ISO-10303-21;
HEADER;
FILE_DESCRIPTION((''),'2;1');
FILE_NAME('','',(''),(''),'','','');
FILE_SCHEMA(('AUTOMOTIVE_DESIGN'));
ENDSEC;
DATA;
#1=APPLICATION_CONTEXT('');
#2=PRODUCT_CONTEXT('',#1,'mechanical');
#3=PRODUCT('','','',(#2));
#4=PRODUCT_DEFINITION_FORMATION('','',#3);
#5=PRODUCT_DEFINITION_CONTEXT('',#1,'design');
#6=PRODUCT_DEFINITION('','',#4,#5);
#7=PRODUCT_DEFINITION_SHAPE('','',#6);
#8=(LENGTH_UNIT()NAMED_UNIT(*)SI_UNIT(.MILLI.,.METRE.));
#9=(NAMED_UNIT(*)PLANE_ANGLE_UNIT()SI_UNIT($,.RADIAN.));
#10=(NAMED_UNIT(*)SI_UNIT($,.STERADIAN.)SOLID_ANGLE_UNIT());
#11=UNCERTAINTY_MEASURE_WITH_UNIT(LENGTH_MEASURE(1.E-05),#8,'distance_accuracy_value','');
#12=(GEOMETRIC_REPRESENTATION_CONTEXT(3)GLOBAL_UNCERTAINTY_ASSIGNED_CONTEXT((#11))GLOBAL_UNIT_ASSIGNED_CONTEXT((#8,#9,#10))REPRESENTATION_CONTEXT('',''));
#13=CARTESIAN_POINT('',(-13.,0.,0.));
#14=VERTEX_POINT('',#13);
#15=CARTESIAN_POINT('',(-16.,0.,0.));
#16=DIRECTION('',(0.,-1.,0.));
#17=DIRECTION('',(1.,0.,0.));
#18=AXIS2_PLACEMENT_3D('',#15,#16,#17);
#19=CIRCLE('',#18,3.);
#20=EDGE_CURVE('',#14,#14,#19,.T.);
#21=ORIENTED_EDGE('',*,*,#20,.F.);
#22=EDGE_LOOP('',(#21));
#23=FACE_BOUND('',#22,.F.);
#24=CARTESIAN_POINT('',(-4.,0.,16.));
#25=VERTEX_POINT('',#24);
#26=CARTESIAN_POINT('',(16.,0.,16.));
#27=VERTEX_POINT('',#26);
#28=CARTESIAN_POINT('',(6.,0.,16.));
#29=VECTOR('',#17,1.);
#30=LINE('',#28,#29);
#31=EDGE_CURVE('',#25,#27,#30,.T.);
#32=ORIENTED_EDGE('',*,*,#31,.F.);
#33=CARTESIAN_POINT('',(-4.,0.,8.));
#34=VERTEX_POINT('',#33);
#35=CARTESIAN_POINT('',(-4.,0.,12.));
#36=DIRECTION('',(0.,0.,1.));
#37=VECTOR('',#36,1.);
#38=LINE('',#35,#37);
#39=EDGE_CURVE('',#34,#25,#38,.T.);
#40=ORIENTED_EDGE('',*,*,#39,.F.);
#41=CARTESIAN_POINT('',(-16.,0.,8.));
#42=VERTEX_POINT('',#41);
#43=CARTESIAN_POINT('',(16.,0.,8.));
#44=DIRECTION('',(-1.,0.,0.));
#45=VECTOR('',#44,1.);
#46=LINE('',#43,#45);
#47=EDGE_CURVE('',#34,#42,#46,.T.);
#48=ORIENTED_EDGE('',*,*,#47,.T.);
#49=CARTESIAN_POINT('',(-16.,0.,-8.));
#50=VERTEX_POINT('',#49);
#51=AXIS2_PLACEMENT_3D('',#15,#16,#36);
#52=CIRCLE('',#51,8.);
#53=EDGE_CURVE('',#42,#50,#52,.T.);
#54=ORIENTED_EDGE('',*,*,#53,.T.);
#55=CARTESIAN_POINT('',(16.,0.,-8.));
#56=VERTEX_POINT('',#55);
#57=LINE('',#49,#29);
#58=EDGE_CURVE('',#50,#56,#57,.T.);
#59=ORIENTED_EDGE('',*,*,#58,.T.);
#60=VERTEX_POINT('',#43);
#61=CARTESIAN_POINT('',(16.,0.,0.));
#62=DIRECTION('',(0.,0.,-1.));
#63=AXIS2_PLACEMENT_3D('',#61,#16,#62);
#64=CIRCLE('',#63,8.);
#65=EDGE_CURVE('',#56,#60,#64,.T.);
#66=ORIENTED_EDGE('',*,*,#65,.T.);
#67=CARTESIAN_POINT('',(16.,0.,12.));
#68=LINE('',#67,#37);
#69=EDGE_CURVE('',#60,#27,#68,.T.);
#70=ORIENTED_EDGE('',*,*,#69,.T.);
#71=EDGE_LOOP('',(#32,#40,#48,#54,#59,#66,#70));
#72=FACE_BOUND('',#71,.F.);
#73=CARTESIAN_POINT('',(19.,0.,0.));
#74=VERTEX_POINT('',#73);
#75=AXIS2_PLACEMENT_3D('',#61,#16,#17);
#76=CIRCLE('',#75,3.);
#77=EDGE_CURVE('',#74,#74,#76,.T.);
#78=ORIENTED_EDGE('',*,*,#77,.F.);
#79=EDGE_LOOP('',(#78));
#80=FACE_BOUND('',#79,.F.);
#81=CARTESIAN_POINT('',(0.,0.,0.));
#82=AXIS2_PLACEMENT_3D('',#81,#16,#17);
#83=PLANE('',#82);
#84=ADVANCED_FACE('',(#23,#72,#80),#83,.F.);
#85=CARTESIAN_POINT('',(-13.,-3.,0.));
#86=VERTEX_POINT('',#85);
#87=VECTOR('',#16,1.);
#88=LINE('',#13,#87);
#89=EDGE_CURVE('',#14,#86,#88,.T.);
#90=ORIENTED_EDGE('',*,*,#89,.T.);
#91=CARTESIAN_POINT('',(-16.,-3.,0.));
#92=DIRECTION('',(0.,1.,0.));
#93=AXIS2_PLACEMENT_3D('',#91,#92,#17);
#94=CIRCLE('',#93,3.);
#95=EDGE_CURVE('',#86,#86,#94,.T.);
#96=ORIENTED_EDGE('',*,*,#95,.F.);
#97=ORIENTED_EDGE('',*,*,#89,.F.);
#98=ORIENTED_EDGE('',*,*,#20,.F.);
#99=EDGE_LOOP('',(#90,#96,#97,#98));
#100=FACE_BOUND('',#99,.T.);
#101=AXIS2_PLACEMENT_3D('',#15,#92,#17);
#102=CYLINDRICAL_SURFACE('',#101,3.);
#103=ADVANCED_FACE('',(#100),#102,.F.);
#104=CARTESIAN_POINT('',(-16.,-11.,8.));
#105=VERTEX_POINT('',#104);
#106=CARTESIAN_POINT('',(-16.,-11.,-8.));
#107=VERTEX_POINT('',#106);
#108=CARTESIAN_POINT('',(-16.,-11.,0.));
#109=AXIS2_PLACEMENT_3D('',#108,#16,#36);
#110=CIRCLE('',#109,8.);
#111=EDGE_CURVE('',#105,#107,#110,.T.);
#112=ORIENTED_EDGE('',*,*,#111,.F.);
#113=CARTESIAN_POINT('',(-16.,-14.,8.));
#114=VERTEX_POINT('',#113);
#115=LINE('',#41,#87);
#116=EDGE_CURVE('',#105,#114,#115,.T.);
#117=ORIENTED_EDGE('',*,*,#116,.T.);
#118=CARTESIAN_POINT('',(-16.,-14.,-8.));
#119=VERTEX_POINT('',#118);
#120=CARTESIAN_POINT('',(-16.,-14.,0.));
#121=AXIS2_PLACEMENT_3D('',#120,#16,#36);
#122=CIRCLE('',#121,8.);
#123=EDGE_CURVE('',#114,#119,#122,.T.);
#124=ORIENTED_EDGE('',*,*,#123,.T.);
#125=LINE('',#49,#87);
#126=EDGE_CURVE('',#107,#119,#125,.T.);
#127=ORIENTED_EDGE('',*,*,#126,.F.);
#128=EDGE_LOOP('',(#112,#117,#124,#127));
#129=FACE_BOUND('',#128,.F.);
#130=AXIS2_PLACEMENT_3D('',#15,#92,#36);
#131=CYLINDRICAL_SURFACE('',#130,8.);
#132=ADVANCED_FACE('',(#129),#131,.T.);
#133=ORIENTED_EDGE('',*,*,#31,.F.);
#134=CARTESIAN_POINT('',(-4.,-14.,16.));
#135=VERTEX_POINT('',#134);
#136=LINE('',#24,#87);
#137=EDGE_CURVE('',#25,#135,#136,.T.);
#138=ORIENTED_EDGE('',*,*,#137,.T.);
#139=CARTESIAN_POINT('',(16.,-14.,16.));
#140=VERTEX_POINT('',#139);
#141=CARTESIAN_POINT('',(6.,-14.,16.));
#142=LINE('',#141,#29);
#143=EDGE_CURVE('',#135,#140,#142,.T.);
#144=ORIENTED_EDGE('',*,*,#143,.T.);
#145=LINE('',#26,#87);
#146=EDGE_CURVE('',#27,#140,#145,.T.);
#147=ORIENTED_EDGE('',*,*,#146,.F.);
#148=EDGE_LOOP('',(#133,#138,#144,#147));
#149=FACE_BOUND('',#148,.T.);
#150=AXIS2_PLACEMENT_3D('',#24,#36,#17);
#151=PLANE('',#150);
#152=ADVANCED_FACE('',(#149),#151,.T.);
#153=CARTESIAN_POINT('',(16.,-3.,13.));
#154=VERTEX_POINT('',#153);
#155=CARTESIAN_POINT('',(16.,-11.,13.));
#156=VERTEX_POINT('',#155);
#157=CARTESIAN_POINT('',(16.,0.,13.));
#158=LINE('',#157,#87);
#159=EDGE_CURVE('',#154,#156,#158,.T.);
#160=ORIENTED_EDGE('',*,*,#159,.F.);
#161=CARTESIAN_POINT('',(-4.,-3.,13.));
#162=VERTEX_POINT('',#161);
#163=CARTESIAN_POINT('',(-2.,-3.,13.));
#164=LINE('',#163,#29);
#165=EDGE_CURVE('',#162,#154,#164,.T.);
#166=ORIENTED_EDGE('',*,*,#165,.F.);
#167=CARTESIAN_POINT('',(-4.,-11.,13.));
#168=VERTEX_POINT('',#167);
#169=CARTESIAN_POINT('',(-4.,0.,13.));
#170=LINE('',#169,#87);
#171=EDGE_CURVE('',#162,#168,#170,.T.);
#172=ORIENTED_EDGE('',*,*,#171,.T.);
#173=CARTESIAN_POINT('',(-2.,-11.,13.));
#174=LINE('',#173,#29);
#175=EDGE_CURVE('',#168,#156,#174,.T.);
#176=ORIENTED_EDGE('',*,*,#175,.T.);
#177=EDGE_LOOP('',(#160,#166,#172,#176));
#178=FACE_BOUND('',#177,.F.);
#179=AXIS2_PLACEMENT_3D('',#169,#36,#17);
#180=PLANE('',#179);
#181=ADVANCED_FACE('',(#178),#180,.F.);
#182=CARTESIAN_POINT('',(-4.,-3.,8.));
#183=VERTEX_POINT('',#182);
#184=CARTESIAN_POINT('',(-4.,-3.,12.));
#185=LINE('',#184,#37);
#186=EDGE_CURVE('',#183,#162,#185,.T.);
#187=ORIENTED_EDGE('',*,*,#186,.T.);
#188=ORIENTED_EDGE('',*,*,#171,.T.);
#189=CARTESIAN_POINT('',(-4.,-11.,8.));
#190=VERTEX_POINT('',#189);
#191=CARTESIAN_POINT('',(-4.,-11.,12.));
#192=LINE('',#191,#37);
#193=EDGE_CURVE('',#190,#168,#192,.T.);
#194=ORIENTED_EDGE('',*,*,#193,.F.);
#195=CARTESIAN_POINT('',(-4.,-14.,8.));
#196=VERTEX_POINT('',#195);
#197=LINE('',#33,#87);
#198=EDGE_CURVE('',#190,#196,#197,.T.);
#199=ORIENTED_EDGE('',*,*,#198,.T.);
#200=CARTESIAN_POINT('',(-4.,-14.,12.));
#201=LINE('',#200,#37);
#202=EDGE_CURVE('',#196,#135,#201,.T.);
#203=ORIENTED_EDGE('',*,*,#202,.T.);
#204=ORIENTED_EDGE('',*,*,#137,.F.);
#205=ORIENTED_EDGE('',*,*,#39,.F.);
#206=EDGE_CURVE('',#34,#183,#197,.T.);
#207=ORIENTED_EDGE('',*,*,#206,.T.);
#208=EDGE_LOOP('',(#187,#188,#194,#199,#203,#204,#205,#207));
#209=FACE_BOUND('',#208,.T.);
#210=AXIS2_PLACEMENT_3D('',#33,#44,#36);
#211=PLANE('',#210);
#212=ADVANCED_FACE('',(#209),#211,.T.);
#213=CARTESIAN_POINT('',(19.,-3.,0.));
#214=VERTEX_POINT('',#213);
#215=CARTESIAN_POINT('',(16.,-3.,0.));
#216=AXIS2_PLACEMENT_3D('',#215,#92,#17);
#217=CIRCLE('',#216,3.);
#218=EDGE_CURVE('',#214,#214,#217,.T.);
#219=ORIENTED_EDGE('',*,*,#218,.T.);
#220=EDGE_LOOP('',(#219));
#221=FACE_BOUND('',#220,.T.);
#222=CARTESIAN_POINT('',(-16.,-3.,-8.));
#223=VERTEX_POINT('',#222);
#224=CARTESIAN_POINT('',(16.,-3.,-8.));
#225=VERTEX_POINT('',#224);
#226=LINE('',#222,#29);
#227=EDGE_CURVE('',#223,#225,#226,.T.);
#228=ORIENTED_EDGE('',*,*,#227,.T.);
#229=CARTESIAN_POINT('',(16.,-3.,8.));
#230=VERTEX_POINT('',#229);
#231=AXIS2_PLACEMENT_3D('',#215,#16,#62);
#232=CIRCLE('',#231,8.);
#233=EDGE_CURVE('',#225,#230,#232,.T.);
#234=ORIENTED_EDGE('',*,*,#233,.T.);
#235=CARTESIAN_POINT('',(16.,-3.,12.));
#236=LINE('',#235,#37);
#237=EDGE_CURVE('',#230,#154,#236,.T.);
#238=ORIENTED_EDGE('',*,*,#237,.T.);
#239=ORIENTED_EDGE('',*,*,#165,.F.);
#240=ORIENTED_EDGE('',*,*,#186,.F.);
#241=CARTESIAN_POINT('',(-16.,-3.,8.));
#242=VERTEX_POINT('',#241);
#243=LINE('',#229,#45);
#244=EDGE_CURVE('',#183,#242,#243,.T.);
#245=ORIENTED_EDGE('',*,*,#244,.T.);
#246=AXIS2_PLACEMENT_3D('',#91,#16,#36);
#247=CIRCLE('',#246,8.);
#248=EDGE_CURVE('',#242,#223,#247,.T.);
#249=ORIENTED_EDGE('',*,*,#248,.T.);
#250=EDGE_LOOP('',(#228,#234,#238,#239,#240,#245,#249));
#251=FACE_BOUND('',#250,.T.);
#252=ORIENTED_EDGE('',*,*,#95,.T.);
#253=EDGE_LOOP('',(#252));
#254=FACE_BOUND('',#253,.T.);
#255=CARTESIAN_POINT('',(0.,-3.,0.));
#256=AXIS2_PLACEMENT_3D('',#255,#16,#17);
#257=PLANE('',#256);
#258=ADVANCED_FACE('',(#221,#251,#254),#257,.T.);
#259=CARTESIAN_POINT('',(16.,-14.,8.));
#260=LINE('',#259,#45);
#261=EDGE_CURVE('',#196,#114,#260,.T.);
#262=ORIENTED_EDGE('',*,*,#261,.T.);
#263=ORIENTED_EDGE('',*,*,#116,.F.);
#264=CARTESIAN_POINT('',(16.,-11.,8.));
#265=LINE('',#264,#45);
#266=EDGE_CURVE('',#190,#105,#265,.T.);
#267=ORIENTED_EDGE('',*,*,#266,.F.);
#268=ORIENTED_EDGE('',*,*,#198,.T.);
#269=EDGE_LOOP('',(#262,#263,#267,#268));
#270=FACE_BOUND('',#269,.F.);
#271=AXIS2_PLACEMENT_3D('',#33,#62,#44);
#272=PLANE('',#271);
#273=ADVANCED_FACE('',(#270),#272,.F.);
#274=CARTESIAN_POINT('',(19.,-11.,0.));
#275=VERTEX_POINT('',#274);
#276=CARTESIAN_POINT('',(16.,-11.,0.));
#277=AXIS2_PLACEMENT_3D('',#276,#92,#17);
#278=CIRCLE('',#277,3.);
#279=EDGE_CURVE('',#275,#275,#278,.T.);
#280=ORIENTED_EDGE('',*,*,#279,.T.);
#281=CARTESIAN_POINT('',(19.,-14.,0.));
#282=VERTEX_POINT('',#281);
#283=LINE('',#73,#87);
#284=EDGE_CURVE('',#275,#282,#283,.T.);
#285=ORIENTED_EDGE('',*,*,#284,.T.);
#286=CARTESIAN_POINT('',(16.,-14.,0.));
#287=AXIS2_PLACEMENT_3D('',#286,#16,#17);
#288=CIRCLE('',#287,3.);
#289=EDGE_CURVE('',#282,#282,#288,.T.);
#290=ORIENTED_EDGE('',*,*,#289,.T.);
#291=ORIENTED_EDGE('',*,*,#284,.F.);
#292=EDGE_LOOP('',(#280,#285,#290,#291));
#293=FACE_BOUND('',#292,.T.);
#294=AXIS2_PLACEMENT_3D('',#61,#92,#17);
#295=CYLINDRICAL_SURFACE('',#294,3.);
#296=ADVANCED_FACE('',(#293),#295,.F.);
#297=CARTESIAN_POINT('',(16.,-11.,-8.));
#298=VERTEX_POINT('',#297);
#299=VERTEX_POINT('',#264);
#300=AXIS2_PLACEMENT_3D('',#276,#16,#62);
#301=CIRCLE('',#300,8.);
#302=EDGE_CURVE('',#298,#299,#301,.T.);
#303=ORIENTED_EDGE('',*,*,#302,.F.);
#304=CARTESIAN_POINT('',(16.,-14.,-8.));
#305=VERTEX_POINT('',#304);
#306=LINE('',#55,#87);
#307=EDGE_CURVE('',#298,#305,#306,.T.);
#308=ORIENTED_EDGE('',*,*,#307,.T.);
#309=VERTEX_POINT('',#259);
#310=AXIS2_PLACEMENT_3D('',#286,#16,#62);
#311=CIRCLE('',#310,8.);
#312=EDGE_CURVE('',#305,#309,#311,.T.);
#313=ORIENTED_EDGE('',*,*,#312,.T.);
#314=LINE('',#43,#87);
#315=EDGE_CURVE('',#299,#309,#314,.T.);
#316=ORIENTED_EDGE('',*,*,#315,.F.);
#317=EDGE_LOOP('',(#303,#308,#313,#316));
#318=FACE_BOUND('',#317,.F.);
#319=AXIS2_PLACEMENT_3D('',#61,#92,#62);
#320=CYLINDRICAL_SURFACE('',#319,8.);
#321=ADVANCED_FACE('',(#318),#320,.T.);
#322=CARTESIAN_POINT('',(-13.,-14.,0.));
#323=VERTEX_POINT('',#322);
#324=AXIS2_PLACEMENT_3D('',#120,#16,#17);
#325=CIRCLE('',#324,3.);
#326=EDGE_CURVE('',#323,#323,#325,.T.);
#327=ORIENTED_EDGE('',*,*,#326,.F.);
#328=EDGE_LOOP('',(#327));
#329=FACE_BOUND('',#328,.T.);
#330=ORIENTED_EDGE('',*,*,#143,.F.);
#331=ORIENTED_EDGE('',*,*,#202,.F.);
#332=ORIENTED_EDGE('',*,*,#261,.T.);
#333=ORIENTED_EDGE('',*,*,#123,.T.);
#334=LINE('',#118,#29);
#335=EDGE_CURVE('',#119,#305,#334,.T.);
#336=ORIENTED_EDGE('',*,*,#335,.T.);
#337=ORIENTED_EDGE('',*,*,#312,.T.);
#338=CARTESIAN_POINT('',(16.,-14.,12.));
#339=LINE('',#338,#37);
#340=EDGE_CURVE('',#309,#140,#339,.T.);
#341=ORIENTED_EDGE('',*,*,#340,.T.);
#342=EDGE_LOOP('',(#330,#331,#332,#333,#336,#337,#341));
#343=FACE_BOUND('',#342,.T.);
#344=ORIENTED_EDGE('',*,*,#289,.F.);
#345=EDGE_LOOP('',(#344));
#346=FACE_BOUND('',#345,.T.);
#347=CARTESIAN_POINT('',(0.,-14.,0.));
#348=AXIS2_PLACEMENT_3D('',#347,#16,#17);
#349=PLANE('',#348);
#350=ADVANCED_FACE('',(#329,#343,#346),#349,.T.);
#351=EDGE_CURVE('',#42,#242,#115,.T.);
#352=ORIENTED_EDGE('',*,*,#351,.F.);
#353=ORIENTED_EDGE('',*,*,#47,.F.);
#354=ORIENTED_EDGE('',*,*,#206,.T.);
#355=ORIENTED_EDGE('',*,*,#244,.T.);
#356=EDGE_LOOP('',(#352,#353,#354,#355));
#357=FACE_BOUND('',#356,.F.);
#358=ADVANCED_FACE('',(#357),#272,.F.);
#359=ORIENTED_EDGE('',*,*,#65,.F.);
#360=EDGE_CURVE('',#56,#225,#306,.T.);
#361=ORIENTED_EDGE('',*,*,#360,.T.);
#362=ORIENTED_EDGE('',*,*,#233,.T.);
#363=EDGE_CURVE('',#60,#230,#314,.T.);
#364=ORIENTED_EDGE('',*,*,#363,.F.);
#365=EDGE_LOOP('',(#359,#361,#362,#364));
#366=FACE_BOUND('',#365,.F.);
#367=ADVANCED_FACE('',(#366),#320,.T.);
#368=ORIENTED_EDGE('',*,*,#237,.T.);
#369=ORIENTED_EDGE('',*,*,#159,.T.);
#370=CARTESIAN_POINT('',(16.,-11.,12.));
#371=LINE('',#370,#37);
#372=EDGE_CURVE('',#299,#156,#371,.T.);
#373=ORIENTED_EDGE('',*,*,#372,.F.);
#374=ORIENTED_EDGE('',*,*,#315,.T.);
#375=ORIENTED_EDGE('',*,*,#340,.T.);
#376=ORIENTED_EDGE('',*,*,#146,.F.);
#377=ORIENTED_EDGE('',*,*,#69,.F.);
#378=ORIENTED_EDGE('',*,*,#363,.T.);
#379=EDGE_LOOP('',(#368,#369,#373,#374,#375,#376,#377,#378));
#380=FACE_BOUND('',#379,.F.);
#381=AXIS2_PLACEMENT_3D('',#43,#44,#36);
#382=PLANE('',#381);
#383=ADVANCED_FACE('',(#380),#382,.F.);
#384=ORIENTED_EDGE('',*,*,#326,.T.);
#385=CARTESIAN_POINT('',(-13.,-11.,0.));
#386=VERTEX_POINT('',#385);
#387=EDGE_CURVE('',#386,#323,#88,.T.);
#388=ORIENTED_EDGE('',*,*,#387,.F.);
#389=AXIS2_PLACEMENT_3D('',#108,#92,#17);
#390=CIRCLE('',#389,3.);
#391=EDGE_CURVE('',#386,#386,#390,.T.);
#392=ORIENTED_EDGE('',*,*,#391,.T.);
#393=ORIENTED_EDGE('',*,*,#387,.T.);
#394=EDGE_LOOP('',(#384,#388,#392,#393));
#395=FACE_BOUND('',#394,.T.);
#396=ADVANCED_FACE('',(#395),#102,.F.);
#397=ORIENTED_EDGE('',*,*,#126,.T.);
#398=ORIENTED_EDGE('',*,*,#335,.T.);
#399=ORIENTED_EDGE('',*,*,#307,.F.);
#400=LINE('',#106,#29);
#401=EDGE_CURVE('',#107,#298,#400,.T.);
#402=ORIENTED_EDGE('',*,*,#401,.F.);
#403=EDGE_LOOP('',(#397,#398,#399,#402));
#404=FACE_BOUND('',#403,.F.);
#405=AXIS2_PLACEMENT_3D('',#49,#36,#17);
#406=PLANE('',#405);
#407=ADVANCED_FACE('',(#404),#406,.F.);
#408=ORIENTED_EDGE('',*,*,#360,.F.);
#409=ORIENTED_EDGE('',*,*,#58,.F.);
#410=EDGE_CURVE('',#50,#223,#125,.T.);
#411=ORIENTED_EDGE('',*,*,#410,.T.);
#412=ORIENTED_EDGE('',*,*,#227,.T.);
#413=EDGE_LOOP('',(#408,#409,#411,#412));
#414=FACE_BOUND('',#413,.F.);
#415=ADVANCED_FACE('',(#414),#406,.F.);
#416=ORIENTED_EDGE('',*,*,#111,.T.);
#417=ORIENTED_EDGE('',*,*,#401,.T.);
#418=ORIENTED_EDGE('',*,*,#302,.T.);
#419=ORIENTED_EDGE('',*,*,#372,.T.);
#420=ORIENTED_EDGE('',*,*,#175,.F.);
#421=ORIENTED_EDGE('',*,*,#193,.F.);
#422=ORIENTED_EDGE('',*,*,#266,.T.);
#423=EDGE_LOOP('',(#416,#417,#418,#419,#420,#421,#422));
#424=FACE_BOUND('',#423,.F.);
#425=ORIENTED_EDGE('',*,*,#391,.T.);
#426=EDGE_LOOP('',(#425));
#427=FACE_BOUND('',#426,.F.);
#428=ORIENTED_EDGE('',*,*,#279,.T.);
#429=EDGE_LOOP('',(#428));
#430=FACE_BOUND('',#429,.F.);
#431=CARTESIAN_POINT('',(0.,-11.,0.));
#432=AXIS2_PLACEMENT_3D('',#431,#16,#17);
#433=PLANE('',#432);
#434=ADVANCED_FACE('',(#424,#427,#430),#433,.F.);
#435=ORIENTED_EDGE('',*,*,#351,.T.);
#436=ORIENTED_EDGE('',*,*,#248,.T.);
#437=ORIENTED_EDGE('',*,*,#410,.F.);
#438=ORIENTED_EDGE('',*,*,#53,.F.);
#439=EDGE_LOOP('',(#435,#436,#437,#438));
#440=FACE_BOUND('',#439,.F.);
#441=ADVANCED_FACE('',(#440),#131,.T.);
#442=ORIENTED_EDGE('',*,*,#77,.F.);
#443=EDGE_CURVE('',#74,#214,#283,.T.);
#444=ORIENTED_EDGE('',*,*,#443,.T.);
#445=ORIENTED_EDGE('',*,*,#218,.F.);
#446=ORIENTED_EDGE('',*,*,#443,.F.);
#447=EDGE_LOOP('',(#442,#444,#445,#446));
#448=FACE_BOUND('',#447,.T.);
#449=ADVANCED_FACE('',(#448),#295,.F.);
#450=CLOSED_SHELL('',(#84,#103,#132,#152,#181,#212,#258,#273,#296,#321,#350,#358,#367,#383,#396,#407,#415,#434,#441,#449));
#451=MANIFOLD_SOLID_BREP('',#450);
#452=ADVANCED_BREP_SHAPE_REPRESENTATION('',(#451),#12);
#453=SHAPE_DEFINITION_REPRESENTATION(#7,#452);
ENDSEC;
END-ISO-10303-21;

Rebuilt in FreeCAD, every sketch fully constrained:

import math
import FreeCAD as App
import Part
import Sketcher
from FreeCAD import Vector
Q = App.Units.Quantity


def faces_at(feature, points):
    """Names of the faces that lie closest to the given points."""
    faces = feature.Shape.Faces
    near = lambda p: min(range(len(faces)), key=lambda i: faces[i].distToShape(Part.Vertex(*p))[0])
    return sorted({f"Face{near(p) + 1}" for p in points})

doc = App.newDocument("Part")
body = doc.addObject("PartDesign::Body", "Body")

# Sketch on XZ plane
sketch1 = body.newObject("Sketcher::SketchObject", "Sketch")
sketch1.AttachmentSupport = (doc.getObject("XZ_Plane"), [""])
sketch1.MapMode = "FlatFace"
sketch1.addGeometry([
    Part.ArcOfCircle(Part.Circle(Vector(-16, 0, 0), Vector(0, 0, 1), 8), math.radians(90), math.radians(270)),  # 0
    Part.LineSegment(Vector(-16, -8, 0), Vector(16, -8, 0)),  # 1
    Part.ArcOfCircle(Part.Circle(Vector(16, 0, 0), Vector(0, 0, 1), 8), math.radians(-90), math.radians(90)),  # 2
    Part.LineSegment(Vector(16, 8, 0), Vector(16, 16, 0)),  # 3
    Part.LineSegment(Vector(16, 16, 0), Vector(-4, 16, 0)),  # 4
    Part.LineSegment(Vector(-4, 16, 0), Vector(-4, 8, 0)),  # 5
    Part.LineSegment(Vector(-4, 8, 0), Vector(-16, 8, 0)),  # 6
], False)
sketch1.addConstraint([
    Sketcher.Constraint("Tangent", 0, 2, 1, 1),
    Sketcher.Constraint("Tangent", 1, 2, 2, 1),
    Sketcher.Constraint("Coincident", 2, 2, 3, 1),
    Sketcher.Constraint("Coincident", 3, 2, 4, 1),
    Sketcher.Constraint("Coincident", 4, 2, 5, 1),
    Sketcher.Constraint("Coincident", 5, 2, 6, 1),
    Sketcher.Constraint("Tangent", 6, 2, 0, 1),
    Sketcher.Constraint("Horizontal", 1),
    Sketcher.Constraint("Vertical", 3),
    Sketcher.Constraint("Horizontal", 4),
    Sketcher.Constraint("Vertical", 5),
    Sketcher.Constraint("Horizontal", 6),
    Sketcher.Constraint("Equal", 0, 2),
    Sketcher.Constraint("Symmetric", 0, 3, 2, 3, -1, 1),
    Sketcher.Constraint("Vertical", 1, 2, 2, 2),
    Sketcher.Constraint("Radius", 0, Q("8 mm")),
    Sketcher.Constraint("DistanceX", 1, 1, 1, 2, Q("32 mm")),
    Sketcher.Constraint("DistanceX", 4, 2, 4, 1, Q("20 mm")),
    Sketcher.Constraint("DistanceY", 3, 1, 3, 2, Q("8 mm")),
])
pad1 = body.newObject("PartDesign::Pad", "Pad")
pad1.Profile = sketch1
pad1.Length = 14
doc.recompute()

thickness = body.newObject("PartDesign::Thickness", "Thickness")
thickness.Base = (pad1, faces_at(pad1, [
    (-4, -7, 12),
    (-10, -7, 8),
    (-24, -7, 0),
    (0, -7, -8),
    (24, -7, 0),
    (16, -7, 12),
]))
thickness.Value = 3
thickness.Reversed = True
thickness.Join = "Arc"

# Sketch on XZ plane
sketch2 = body.newObject("Sketcher::SketchObject", "Sketch001")
sketch2.AttachmentSupport = (doc.getObject("XZ_Plane"), [""])
sketch2.MapMode = "FlatFace"
sketch2.addGeometry([
    Part.Circle(Vector(16, 0, 0), Vector(0, 0, 1), 3),
    Part.Circle(Vector(-16, 0, 0), Vector(0, 0, 1), 3),
], False)
sketch2.addConstraint([
    Sketcher.Constraint("Equal", 0, 1),
    Sketcher.Constraint("Symmetric", 0, 3, 1, 3, -1, 1),
    Sketcher.Constraint("PointOnObject", 0, 3, -1),
    Sketcher.Constraint("Diameter", 0, Q("6 mm")),
    Sketcher.Constraint("DistanceX", -1, 1, 0, 3, Q("16 mm")),
])
pocket1 = body.newObject("PartDesign::Pocket", "Pocket")
pocket1.Profile = sketch2
pocket1.Length = 14
pocket1.Reversed = True

doc.recompute()
